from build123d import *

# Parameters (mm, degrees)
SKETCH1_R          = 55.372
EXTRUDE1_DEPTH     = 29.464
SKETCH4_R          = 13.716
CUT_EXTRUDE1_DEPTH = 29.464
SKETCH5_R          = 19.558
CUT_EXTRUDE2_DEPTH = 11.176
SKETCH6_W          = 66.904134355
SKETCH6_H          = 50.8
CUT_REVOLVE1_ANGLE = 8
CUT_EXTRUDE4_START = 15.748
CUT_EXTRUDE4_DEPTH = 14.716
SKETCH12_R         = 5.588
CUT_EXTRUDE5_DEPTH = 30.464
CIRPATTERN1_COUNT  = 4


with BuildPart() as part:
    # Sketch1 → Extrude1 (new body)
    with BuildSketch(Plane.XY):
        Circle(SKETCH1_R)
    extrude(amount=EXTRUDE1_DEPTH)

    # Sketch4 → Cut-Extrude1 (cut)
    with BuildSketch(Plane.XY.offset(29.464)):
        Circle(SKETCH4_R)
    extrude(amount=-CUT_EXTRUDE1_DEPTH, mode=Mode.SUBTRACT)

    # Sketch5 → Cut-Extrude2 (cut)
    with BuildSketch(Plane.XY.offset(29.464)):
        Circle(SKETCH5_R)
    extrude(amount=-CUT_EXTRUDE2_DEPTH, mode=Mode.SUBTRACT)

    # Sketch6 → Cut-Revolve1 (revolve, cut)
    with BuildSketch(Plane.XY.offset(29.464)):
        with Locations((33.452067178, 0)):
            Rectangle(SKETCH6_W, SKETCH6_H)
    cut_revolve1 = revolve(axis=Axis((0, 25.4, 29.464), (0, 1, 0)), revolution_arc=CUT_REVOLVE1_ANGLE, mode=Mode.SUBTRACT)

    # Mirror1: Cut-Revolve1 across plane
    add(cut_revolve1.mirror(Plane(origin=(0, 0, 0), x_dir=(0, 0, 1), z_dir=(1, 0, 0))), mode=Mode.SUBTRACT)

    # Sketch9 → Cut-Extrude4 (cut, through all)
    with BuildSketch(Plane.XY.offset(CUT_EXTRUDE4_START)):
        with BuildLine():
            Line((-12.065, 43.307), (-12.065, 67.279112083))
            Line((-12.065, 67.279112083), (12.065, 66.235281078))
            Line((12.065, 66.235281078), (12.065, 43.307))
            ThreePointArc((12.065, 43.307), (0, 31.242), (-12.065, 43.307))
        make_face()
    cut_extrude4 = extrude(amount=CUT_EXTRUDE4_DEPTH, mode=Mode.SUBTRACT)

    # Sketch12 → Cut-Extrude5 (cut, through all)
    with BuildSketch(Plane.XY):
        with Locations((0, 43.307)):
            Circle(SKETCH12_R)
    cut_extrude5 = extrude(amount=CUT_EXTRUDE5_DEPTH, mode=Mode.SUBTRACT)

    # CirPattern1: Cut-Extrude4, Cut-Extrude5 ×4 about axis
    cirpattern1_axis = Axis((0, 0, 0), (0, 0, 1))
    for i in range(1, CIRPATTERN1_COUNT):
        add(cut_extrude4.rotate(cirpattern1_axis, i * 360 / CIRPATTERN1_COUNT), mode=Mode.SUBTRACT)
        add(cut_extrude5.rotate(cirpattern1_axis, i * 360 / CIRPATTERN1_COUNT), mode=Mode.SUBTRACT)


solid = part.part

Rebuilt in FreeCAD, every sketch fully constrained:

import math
import FreeCAD as App
import Part
import Sketcher

V = App.Vector
Q = App.Units.Quantity

doc = App.newDocument("Part")
body = doc.addObject("PartDesign::Body", "Body")

# Sketch on XY plane
sketch1 = body.newObject("Sketcher::SketchObject", "Sketch")
sketch1.AttachmentSupport = (doc.getObject("XY_Plane"), [""])
sketch1.MapMode = "FlatFace"
sketch1.addGeometry(Part.Circle(V(0, 0, 0), V(0, 0, 1), 55), False)
sketch1.addConstraint([
    Sketcher.Constraint("Coincident", 0, 3, -1, 1),
    Sketcher.Constraint("Diameter", 0, Q("4.36 in")),
])
pad1 = body.newObject("PartDesign::Pad", "Pad")
pad1.Profile = sketch1
pad1.Length = Q("1.16 in")

# Sketch on XY plane
sketch2 = body.newObject("Sketcher::SketchObject", "Sketch001")
sketch2.AttachmentSupport = (doc.getObject("XY_Plane"), [""])
sketch2.MapMode = "FlatFace"
sketch2.AttachmentOffset = App.Placement(V(0, 0, 1.16 * 25.4), App.Rotation())
sketch2.addGeometry(Part.Circle(V(0, 0, 0), V(0, 0, 1), 14), False)
sketch2.addConstraint([
    Sketcher.Constraint("Coincident", 0, 3, -1, 1),
    Sketcher.Constraint("Diameter", 0, Q("1.08 in")),
])
pocket1 = body.newObject("PartDesign::Pocket", "Pocket")
pocket1.Profile = sketch2
pocket1.Length = Q("1.16 in")

# Sketch on XY plane
sketch3 = body.newObject("Sketcher::SketchObject", "Sketch002")
sketch3.AttachmentSupport = (doc.getObject("XY_Plane"), [""])
sketch3.MapMode = "FlatFace"
sketch3.AttachmentOffset = App.Placement(V(0, 0, 1.16 * 25.4), App.Rotation())
sketch3.addGeometry(Part.Circle(V(0, 0, 0), V(0, 0, 1), 20), False)
sketch3.addConstraint([
    Sketcher.Constraint("Coincident", 0, 3, -1, 1),
    Sketcher.Constraint("Diameter", 0, Q("1.54 in")),
])
pocket2 = body.newObject("PartDesign::Pocket", "Pocket001")
pocket2.Profile = sketch3
pocket2.Length = Q("0.44 in")

# Sketch on XY plane
sketch4 = body.newObject("Sketcher::SketchObject", "Sketch003")
sketch4.AttachmentSupport = (doc.getObject("XY_Plane"), [""])
sketch4.MapMode = "FlatFace"
sketch4.AttachmentOffset = App.Placement(V(0, 0, 1.16 * 25.4), App.Rotation())
sketch4.addGeometry([
    Part.LineSegment(V(0, 25, 0), V(0, -25, 0)),
    Part.LineSegment(V(0, -25, 0), V(67, -25, 0)),
    Part.LineSegment(V(67, -25, 0), V(67, 25, 0)),
    Part.LineSegment(V(67, 25, 0), V(0, 25, 0)),
], False)
sketch4.addConstraint([
    Sketcher.Constraint("Coincident", 0, 2, 1, 1),
    Sketcher.Constraint("Coincident", 1, 2, 2, 1),
    Sketcher.Constraint("Coincident", 2, 2, 3, 1),
    Sketcher.Constraint("Coincident", 3, 2, 0, 1),
    Sketcher.Constraint("Vertical", 0),
    Sketcher.Constraint("Horizontal", 1),
    Sketcher.Constraint("Vertical", 2),
    Sketcher.Constraint("Horizontal", 3),
    Sketcher.Constraint("Symmetric", 0, 2, 3, 2, -1, 1),
    Sketcher.Constraint("DistanceY", 0, 2, 0, 1, Q("2 in")),
    Sketcher.Constraint("DistanceX", 1, 1, 1, 2, 66.904134),
])
groove = body.newObject("PartDesign::Groove", "Groove")
groove.Profile = sketch4
groove.ReferenceAxis = (sketch4, ["V_Axis"])
groove.Angle = 8
doc.recompute()

mirrored = body.newObject("PartDesign::Mirrored", "Mirrored")
mirrored.Originals = [groove]
mirrored.MirrorPlane = (doc.getObject("YZ_Plane"), [""])
body.Tip = mirrored

# Sketch on XY plane
sketch5 = body.newObject("Sketcher::SketchObject", "Sketch004")
sketch5.AttachmentSupport = (doc.getObject("XY_Plane"), [""])
sketch5.MapMode = "FlatFace"
sketch5.AttachmentOffset = App.Placement(V(0, 0, 0.62 * 25.4), App.Rotation())
sketch5.addGeometry([
    Part.LineSegment(V(-12, 67, 0), V(-12, 43, 0)),
    Part.ArcOfCircle(Part.Circle(V(0, 43, 0), V(0, 0, 1), 12), math.radians(180), math.radians(360)),
    Part.LineSegment(V(12, 43, 0), V(12, 66, 0)),
    Part.LineSegment(V(12, 66, 0), V(-12, 67, 0)),
], False)
sketch5.addConstraint([
    Sketcher.Constraint("Tangent", 0, 2, 1, 1),
    Sketcher.Constraint("Tangent", 1, 2, 2, 1),
    Sketcher.Constraint("Coincident", 2, 2, 3, 1),
    Sketcher.Constraint("Coincident", 3, 2, 0, 1),
    Sketcher.Constraint("Vertical", 0),
    Sketcher.Constraint("Vertical", 2),
    Sketcher.Constraint("PointOnObject", 1, 3, -2),
    Sketcher.Constraint("Radius", 1, Q("0.475 in")),
    Sketcher.Constraint("DistanceY", -1, 1, 1, 3, Q("1.705 in")),
    Sketcher.Constraint("DistanceY", 2, 1, 2, 2, 22.928281),
    Sketcher.Constraint("DistanceY", 0, 2, 0, 1, 23.972112),
])
pocket3 = body.newObject("PartDesign::Pocket", "Pocket002")
pocket3.Profile = sketch5
pocket3.Type = "ThroughAll"
pocket3.Reversed = True

# Sketch on XY plane
sketch6 = body.newObject("Sketcher::SketchObject", "Sketch005")
sketch6.AttachmentSupport = (doc.getObject("XY_Plane"), [""])
sketch6.MapMode = "FlatFace"
sketch6.addGeometry(Part.Circle(V(0, 43, 0), V(0, 0, 1), 6), False)
sketch6.addConstraint([
    Sketcher.Constraint("PointOnObject", 0, 3, -2),
    Sketcher.Constraint("Diameter", 0, Q("0.44 in")),
    Sketcher.Constraint("DistanceY", -1, 1, 0, 3, Q("1.705 in")),
])
pocket4 = body.newObject("PartDesign::Pocket", "Pocket003")
pocket4.Profile = sketch6
pocket4.Type = "ThroughAll"
pocket4.Reversed = True
doc.recompute()

polarpattern = body.newObject("PartDesign::PolarPattern", "PolarPattern")
polarpattern.Originals = [pocket3, pocket4]
polarpattern.Axis = (doc.getObject("Z_Axis"), [""])
polarpattern.Angle = 360
polarpattern.Occurrences = 4
body.Tip = polarpattern

doc.recompute()
